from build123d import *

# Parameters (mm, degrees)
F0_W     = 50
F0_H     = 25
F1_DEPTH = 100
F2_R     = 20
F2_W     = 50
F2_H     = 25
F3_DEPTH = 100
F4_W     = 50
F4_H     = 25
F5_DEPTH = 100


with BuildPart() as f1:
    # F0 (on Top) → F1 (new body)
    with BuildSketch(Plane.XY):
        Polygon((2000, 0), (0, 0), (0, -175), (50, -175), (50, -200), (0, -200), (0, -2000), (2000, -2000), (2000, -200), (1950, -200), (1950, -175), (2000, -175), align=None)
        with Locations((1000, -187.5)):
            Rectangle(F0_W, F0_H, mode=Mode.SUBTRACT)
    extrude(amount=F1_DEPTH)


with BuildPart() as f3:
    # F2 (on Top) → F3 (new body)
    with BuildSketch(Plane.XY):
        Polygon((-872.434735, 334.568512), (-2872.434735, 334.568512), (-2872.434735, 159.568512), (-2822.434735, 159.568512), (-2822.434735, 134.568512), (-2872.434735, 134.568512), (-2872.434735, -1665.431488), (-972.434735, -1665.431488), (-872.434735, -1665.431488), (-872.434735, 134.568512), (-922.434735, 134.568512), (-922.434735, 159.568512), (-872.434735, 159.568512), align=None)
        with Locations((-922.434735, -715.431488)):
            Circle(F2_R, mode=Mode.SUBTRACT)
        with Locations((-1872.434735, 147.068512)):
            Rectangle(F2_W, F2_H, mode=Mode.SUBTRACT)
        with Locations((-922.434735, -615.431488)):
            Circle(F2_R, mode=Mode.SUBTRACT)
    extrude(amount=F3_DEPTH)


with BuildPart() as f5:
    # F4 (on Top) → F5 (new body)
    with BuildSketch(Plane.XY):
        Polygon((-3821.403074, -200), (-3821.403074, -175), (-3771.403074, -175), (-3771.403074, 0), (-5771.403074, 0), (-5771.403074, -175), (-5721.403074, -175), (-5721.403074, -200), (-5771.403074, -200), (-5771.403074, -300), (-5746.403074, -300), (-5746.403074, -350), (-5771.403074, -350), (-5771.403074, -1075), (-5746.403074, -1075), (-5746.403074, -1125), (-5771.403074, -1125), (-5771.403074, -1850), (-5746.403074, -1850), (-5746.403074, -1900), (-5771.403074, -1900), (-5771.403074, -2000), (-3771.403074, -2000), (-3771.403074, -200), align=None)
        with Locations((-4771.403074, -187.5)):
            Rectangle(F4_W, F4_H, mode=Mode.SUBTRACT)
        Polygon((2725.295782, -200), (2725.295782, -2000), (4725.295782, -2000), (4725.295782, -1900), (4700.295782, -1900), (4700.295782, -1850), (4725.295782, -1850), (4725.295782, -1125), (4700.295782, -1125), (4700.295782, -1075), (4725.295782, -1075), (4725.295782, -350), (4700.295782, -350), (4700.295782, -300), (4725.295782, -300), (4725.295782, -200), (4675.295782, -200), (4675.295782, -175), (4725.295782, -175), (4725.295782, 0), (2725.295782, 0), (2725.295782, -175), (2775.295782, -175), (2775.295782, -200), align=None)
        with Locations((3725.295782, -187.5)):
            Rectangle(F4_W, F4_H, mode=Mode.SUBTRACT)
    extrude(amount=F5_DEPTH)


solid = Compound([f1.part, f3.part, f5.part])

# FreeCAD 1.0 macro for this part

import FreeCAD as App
import Part
import Sketcher
from FreeCAD import Vector


def add_polygon(sketch, points):
    """Adds a closed chain of lines whose ends are joined by coincident constraints."""
    first, n = sketch.GeometryCount, len(points)
    for a, b in zip(points, points[1:] + points[:1]):
        sketch.addGeometry(Part.LineSegment(App.Vector(*a, 0), App.Vector(*b, 0)), False)
    for i in range(n):
        sketch.addConstraint(Sketcher.Constraint("Coincident", first + i, 2, first + (i + 1) % n, 1))

doc = App.newDocument("Part")
body = doc.addObject("PartDesign::Body", "Body")

# Sketch on XY plane
sketch1 = doc.addObject("Sketcher::SketchObject", "Sketch")
body.addObject(sketch1)
sketch1.AttachmentSupport = (doc.XY_Plane, [""])
sketch1.MapMode = "FlatFace"
add_polygon(sketch1, [(2000, 0), (0, 0), (0, -175), (50, -175), (50, -200), (0, -200), (0, -2000), (2000, -2000), (2000, -200), (1950, -200), (1950, -175), (2000, -175)])  # lines 0-11
add_polygon(sketch1, [(1025, -200), (975, -200), (975, -175), (1025, -175)])  # lines 12-15
sketch1.addConstraint([
    Sketcher.Constraint("Horizontal", 0),
    Sketcher.Constraint("Vertical", 1),
    Sketcher.Constraint("Horizontal", 2),
    Sketcher.Constraint("Vertical", 3),
    Sketcher.Constraint("Horizontal", 4),
    Sketcher.Constraint("Vertical", 5),
    Sketcher.Constraint("Horizontal", 6),
    Sketcher.Constraint("Vertical", 7),
    Sketcher.Constraint("Horizontal", 8),
    Sketcher.Constraint("Vertical", 9),
    Sketcher.Constraint("Horizontal", 10),
    Sketcher.Constraint("Vertical", 11),
    Sketcher.Constraint("Horizontal", 12),
    Sketcher.Constraint("Vertical", 13),
    Sketcher.Constraint("Horizontal", 14),
    Sketcher.Constraint("Vertical", 15),
    Sketcher.Constraint("Coincident", 0, 2, -1, 1),
    Sketcher.Constraint("PointOnObject", 4, 2, -2),
    Sketcher.Constraint("Horizontal", 4, 2, 7, 2),
    Sketcher.Constraint("Horizontal", 2, 2, 9, 2),
    Sketcher.Constraint("Horizontal", 8, 2, 12, 2),
    Sketcher.Constraint("Horizontal", 10, 2, 13, 2),
    Sketcher.Constraint("Vertical", 7, 2, 10, 2),
    Sketcher.Constraint("Equal", 4, 8),
    Sketcher.Constraint("Equal", 10, 12),
    Sketcher.Constraint("DistanceX", 0, 2, 0, 1, 2000.0),
    Sketcher.Constraint("DistanceX", 2, 1, 2, 2, 50.0),
    Sketcher.Constraint("DistanceY", 1, 2, 1, 1, 175.0),
    Sketcher.Constraint("DistanceY", 3, 2, 3, 1, 25.0),
    Sketcher.Constraint("DistanceY", 5, 2, 5, 1, 1800.0),
    Sketcher.Constraint("DistanceX", -1, 1, 12, 2, 975.0),
])
pad1 = doc.addObject("PartDesign::Pad", "Pad")
body.addObject(pad1)
pad1.Profile = sketch1
pad1.Length = 100
body2 = doc.addObject("PartDesign::Body", "Body001")

# Sketch on XY plane
sketch2 = doc.addObject("Sketcher::SketchObject", "Sketch001")
body2.addObject(sketch2)
sketch2.AttachmentSupport = (doc.getObject("XY_Plane001"), [""])
sketch2.MapMode = "FlatFace"
add_polygon(sketch2, [(-872.434735, 334.568512), (-2872.434735, 334.568512), (-2872.434735, 159.568512), (-2822.434735, 159.568512), (-2822.434735, 134.568512), (-2872.434735, 134.568512), (-2872.434735, -1665.431488), (-872.434735, -1665.431488), (-872.434735, 134.568512), (-922.434735, 134.568512), (-922.434735, 159.568512), (-872.434735, 159.568512)])  # lines 0-11
sketch2.addGeometry(Part.Circle(Vector(-922.434735, -715.431488, 0), Vector(0, 0, 1), 20), False)  # 12
sketch2.addGeometry(Part.Circle(Vector(-922.434735, -615.431488, 0), Vector(0, 0, 1), 20), False)  # 13
add_polygon(sketch2, [(-1847.434735, 134.568512), (-1897.434735, 134.568512), (-1897.434735, 159.568512), (-1847.434735, 159.568512)])  # lines 14-17
sketch2.addConstraint([
    Sketcher.Constraint("Horizontal", 0),
    Sketcher.Constraint("Vertical", 1),
    Sketcher.Constraint("Horizontal", 2),
    Sketcher.Constraint("Vertical", 3),
    Sketcher.Constraint("Horizontal", 4),
    Sketcher.Constraint("Vertical", 5),
    Sketcher.Constraint("Horizontal", 6),
    Sketcher.Constraint("Vertical", 7),
    Sketcher.Constraint("Horizontal", 8),
    Sketcher.Constraint("Vertical", 9),
    Sketcher.Constraint("Horizontal", 10),
    Sketcher.Constraint("Vertical", 11),
    Sketcher.Constraint("Horizontal", 14),
    Sketcher.Constraint("Vertical", 15),
    Sketcher.Constraint("Horizontal", 16),
    Sketcher.Constraint("Vertical", 17),
    Sketcher.Constraint("Equal", 12, 13),
    Sketcher.Constraint("Horizontal", 4, 2, 7, 2),
    Sketcher.Constraint("Horizontal", 2, 2, 9, 2),
    Sketcher.Constraint("Horizontal", 8, 2, 14, 2),
    Sketcher.Constraint("Horizontal", 10, 2, 15, 2),
    Sketcher.Constraint("Vertical", 12, 3, 13, 3),
    Sketcher.Constraint("Vertical", 1, 2, 4, 2),
    Sketcher.Constraint("Vertical", 13, 3, 8, 2),
    Sketcher.Constraint("Vertical", 7, 2, 10, 2),
    Sketcher.Constraint("Equal", 4, 8),
    Sketcher.Constraint("Equal", 10, 14),
    Sketcher.Constraint("Diameter", 12, 40.0),
    Sketcher.Constraint("DistanceX", 0, 2, 0, 1, 2000.0),
    Sketcher.Constraint("DistanceX", 2, 1, 2, 2, 50.0),
    Sketcher.Constraint("DistanceY", 1, 2, 1, 1, 175.0),
    Sketcher.Constraint("DistanceY", 3, 2, 3, 1, 25.0),
    Sketcher.Constraint("DistanceY", 5, 2, 5, 1, 1800.0),
    Sketcher.Constraint("DistanceY", 12, 3, 13, 3, 100.0),
    Sketcher.Constraint("DistanceY", 13, 3, 0, 2, 950.0),
    Sketcher.Constraint("DistanceX", 3, 2, 14, 2, 925.0),
    Sketcher.Constraint("DistanceY", -1, 1, 0, 2, 334.568512),
    Sketcher.Constraint("DistanceX", 12, 3, -1, 1, 922.434735),
])
pad2 = doc.addObject("PartDesign::Pad", "Pad001")
body2.addObject(pad2)
pad2.Profile = sketch2
pad2.Length = 100
body3 = doc.addObject("PartDesign::Body", "Body002")
body3.AllowCompound = True

# Sketch on XY plane
sketch3 = doc.addObject("Sketcher::SketchObject", "Sketch002")
body3.addObject(sketch3)
sketch3.AttachmentSupport = (doc.getObject("XY_Plane002"), [""])
sketch3.MapMode = "FlatFace"
add_polygon(sketch3, [(-3821.403074, -200), (-3821.403074, -175), (-3771.403074, -175), (-3771.403074, 0), (-5771.403074, 0), (-5771.403074, -175), (-5721.403074, -175), (-5721.403074, -200), (-5771.403074, -200), (-5771.403074, -300), (-5746.403074, -300), (-5746.403074, -350), (-5771.403074, -350), (-5771.403074, -1075), (-5746.403074, -1075), (-5746.403074, -1125), (-5771.403074, -1125), (-5771.403074, -1850), (-5746.403074, -1850), (-5746.403074, -1900), (-5771.403074, -1900), (-5771.403074, -2000), (-3771.403074, -2000), (-3771.403074, -200)])  # lines 0-23
add_polygon(sketch3, [(-4746.403074, -200), (-4796.403074, -200), (-4796.403074, -175), (-4746.403074, -175)])  # lines 24-27
add_polygon(sketch3, [(2725.295782, -200), (2725.295782, -2000), (4725.295782, -2000), (4725.295782, -1900), (4700.295782, -1900), (4700.295782, -1850), (4725.295782, -1850), (4725.295782, -1125), (4700.295782, -1125), (4700.295782, -1075), (4725.295782, -1075), (4725.295782, -350), (4700.295782, -350), (4700.295782, -300), (4725.295782, -300), (4725.295782, -200), (4675.295782, -200), (4675.295782, -175), (4725.295782, -175), (4725.295782, 0), (2725.295782, 0), (2725.295782, -175), (2775.295782, -175), (2775.295782, -200)])  # lines 28-51
add_polygon(sketch3, [(3750.295782, -200), (3700.295782, -200), (3700.295782, -175), (3750.295782, -175)])  # lines 52-55
sketch3.addConstraint([
    Sketcher.Constraint("Vertical", 0),
    Sketcher.Constraint("Horizontal", 1),
    Sketcher.Constraint("Vertical", 2),
    Sketcher.Constraint("Horizontal", 3),
    Sketcher.Constraint("Vertical", 4),
    Sketcher.Constraint("Horizontal", 5),
    Sketcher.Constraint("Vertical", 6),
    Sketcher.Constraint("Horizontal", 7),
    Sketcher.Constraint("Vertical", 8),
    Sketcher.Constraint("Horizontal", 9),
    Sketcher.Constraint("Vertical", 10),
    Sketcher.Constraint("Horizontal", 11),
    Sketcher.Constraint("Vertical", 12),
    Sketcher.Constraint("Horizontal", 13),
    Sketcher.Constraint("Vertical", 14),
    Sketcher.Constraint("Horizontal", 15),
    Sketcher.Constraint("Vertical", 16),
    Sketcher.Constraint("Horizontal", 17),
    Sketcher.Constraint("Vertical", 18),
    Sketcher.Constraint("Horizontal", 19),
    Sketcher.Constraint("Vertical", 20),
    Sketcher.Constraint("Horizontal", 21),
    Sketcher.Constraint("Vertical", 22),
    Sketcher.Constraint("Horizontal", 23),
    Sketcher.Constraint("Horizontal", 24),
    Sketcher.Constraint("Vertical", 25),
    Sketcher.Constraint("Horizontal", 26),
    Sketcher.Constraint("Vertical", 27),
    Sketcher.Constraint("Vertical", 28),
    Sketcher.Constraint("Horizontal", 29),
    Sketcher.Constraint("Vertical", 30),
    Sketcher.Constraint("Horizontal", 31),
    Sketcher.Constraint("Vertical", 32),
    Sketcher.Constraint("Horizontal", 33),
    Sketcher.Constraint("Vertical", 34),
    Sketcher.Constraint("Horizontal", 35),
    Sketcher.Constraint("Vertical", 36),
    Sketcher.Constraint("Horizontal", 37),
    Sketcher.Constraint("Vertical", 38),
    Sketcher.Constraint("Horizontal", 39),
    Sketcher.Constraint("Vertical", 40),
    Sketcher.Constraint("Horizontal", 41),
    Sketcher.Constraint("Vertical", 42),
    Sketcher.Constraint("Horizontal", 43),
    Sketcher.Constraint("Vertical", 44),
    Sketcher.Constraint("Horizontal", 45),
    Sketcher.Constraint("Vertical", 46),
    Sketcher.Constraint("Horizontal", 47),
    Sketcher.Constraint("Vertical", 48),
    Sketcher.Constraint("Horizontal", 49),
    Sketcher.Constraint("Vertical", 50),
    Sketcher.Constraint("Horizontal", 51),
    Sketcher.Constraint("Horizontal", 52),
    Sketcher.Constraint("Vertical", 53),
    Sketcher.Constraint("Horizontal", 54),
    Sketcher.Constraint("Vertical", 55),
    Sketcher.Constraint("PointOnObject", 2, 2, -1),
    Sketcher.Constraint("PointOnObject", 46, 2, -1),
    Sketcher.Constraint("Horizontal", 1, 2, 4, 2),
    Sketcher.Constraint("Horizontal", 7, 2, 22, 2),
    Sketcher.Constraint("Horizontal", 23, 2, 24, 2),
    Sketcher.Constraint("Horizontal", 5, 2, 25, 2),
    Sketcher.Constraint("Horizontal", 21, 2, 28, 2),
    Sketcher.Constraint("Horizontal", 19, 2, 30, 2),
    Sketcher.Constraint("Horizontal", 17, 2, 32, 2),
    Sketcher.Constraint("Horizontal", 15, 2, 34, 2),
    Sketcher.Constraint("Horizontal", 13, 2, 36, 2),
    Sketcher.Constraint("Horizontal", 11, 2, 38, 2),
    Sketcher.Constraint("Horizontal", 9, 2, 40, 2),
    Sketcher.Constraint("Horizontal", 27, 2, 42, 2),
    Sketcher.Constraint("Horizontal", 26, 2, 44, 2),
    Sketcher.Constraint("Horizontal", 45, 2, 48, 2),
    Sketcher.Constraint("Horizontal", 43, 2, 50, 2),
    Sketcher.Constraint("Horizontal", 51, 2, 52, 2),
    Sketcher.Constraint("Horizontal", 49, 2, 53, 2),
    Sketcher.Constraint("Vertical", 4, 2, 7, 2),
    Sketcher.Constraint("Vertical", 8, 2, 11, 2),
    Sketcher.Constraint("Vertical", 10, 2, 13, 2),
    Sketcher.Constraint("Vertical", 12, 2, 15, 2),
    Sketcher.Constraint("Vertical", 14, 2, 17, 2),
    Sketcher.Constraint("Vertical", 16, 2, 19, 2),
    Sketcher.Constraint("Vertical", 2, 2, 21, 2),
    Sketcher.Constraint("Vertical", 30, 2, 33, 2),
    Sketcher.Constraint("Vertical", 32, 2, 35, 2),
    Sketcher.Constraint("Vertical", 34, 2, 37, 2),
    Sketcher.Constraint("Vertical", 36, 2, 39, 2),
    Sketcher.Constraint("Vertical", 38, 2, 41, 2),
    Sketcher.Constraint("Vertical", 42, 2, 45, 2),
    Sketcher.Constraint("Vertical", 28, 2, 47, 2),
    Sketcher.Constraint("Equal", 1, 5),
    Sketcher.Constraint("Equal", 23, 24),
    Sketcher.Constraint("Equal", 21, 29),
    Sketcher.Constraint("Equal", 19, 31),
    Sketcher.Constraint("Equal", 26, 43),
    Sketcher.Constraint("Equal", 45, 49),
    Sketcher.Constraint("Equal", 51, 52),
    Sketcher.Constraint("Equal", 41, 0),
    Sketcher.Constraint("Equal", 54, 10),
    Sketcher.Constraint("Equal", 10, 14),
    Sketcher.Constraint("Equal", 12, 16),
    Sketcher.Constraint("Equal", 14, 18),
    Sketcher.Constraint("Equal", 8, 20),
    Sketcher.Constraint("DistanceX", 1, 1, 1, 2, 50.0),
    Sketcher.Constraint("DistanceX", 3, 2, 3, 1, 2000.0),
    Sketcher.Constraint("DistanceX", 9, 1, 9, 2, 25.0),
    Sketcher.Constraint("DistanceY", 2, 1, 2, 2, 175.0),
    Sketcher.Constraint("DistanceY", 8, 2, 8, 1, 100.0),
    Sketcher.Constraint("DistanceY", 12, 2, 12, 1, 725.0),
    Sketcher.Constraint("DistanceX", 6, 2, 24, 2, 925.0),
    Sketcher.Constraint("DistanceX", 50, 2, 52, 2, 925.0),
    Sketcher.Constraint("DistanceX", -1, 1, 29, 2, 4725.295782),
    Sketcher.Constraint("DistanceX", 0, 2, -1, 1, 3821.403074),
])
pad3 = doc.addObject("PartDesign::Pad", "Pad002")
body3.addObject(pad3)
pad3.Profile = sketch3
pad3.Length = 100

doc.recompute()
